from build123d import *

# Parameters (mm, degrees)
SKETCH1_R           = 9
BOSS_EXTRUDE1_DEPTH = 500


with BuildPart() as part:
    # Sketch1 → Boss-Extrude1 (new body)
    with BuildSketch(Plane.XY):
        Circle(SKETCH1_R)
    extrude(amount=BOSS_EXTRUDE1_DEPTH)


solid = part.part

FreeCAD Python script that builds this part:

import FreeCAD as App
import Part
import Sketcher

V = App.Vector
Q = App.Units.Quantity

doc = App.newDocument("Part")
body = doc.addObject("PartDesign::Body", "Body")

# Sketch on XY plane
sketch1 = body.newObject("Sketcher::SketchObject", "Sketch")
sketch1.AttachmentSupport = (doc.getObject("XY_Plane"), [""])
sketch1.MapMode = "FlatFace"
sketch1.addGeometry(Part.Circle(V(0, 0, 0), V(0, 0, 1), 9), False)
sketch1.addConstraint(Sketcher.Constraint("Coincident", 0, 3, -1, 1))
sketch1.addConstraint(Sketcher.Constraint("Diameter", 0, Q("18 mm")))
pad1 = body.newObject("PartDesign::Pad", "Pad")
pad1.Profile = sketch1
pad1.Length = 500

doc.recompute()
